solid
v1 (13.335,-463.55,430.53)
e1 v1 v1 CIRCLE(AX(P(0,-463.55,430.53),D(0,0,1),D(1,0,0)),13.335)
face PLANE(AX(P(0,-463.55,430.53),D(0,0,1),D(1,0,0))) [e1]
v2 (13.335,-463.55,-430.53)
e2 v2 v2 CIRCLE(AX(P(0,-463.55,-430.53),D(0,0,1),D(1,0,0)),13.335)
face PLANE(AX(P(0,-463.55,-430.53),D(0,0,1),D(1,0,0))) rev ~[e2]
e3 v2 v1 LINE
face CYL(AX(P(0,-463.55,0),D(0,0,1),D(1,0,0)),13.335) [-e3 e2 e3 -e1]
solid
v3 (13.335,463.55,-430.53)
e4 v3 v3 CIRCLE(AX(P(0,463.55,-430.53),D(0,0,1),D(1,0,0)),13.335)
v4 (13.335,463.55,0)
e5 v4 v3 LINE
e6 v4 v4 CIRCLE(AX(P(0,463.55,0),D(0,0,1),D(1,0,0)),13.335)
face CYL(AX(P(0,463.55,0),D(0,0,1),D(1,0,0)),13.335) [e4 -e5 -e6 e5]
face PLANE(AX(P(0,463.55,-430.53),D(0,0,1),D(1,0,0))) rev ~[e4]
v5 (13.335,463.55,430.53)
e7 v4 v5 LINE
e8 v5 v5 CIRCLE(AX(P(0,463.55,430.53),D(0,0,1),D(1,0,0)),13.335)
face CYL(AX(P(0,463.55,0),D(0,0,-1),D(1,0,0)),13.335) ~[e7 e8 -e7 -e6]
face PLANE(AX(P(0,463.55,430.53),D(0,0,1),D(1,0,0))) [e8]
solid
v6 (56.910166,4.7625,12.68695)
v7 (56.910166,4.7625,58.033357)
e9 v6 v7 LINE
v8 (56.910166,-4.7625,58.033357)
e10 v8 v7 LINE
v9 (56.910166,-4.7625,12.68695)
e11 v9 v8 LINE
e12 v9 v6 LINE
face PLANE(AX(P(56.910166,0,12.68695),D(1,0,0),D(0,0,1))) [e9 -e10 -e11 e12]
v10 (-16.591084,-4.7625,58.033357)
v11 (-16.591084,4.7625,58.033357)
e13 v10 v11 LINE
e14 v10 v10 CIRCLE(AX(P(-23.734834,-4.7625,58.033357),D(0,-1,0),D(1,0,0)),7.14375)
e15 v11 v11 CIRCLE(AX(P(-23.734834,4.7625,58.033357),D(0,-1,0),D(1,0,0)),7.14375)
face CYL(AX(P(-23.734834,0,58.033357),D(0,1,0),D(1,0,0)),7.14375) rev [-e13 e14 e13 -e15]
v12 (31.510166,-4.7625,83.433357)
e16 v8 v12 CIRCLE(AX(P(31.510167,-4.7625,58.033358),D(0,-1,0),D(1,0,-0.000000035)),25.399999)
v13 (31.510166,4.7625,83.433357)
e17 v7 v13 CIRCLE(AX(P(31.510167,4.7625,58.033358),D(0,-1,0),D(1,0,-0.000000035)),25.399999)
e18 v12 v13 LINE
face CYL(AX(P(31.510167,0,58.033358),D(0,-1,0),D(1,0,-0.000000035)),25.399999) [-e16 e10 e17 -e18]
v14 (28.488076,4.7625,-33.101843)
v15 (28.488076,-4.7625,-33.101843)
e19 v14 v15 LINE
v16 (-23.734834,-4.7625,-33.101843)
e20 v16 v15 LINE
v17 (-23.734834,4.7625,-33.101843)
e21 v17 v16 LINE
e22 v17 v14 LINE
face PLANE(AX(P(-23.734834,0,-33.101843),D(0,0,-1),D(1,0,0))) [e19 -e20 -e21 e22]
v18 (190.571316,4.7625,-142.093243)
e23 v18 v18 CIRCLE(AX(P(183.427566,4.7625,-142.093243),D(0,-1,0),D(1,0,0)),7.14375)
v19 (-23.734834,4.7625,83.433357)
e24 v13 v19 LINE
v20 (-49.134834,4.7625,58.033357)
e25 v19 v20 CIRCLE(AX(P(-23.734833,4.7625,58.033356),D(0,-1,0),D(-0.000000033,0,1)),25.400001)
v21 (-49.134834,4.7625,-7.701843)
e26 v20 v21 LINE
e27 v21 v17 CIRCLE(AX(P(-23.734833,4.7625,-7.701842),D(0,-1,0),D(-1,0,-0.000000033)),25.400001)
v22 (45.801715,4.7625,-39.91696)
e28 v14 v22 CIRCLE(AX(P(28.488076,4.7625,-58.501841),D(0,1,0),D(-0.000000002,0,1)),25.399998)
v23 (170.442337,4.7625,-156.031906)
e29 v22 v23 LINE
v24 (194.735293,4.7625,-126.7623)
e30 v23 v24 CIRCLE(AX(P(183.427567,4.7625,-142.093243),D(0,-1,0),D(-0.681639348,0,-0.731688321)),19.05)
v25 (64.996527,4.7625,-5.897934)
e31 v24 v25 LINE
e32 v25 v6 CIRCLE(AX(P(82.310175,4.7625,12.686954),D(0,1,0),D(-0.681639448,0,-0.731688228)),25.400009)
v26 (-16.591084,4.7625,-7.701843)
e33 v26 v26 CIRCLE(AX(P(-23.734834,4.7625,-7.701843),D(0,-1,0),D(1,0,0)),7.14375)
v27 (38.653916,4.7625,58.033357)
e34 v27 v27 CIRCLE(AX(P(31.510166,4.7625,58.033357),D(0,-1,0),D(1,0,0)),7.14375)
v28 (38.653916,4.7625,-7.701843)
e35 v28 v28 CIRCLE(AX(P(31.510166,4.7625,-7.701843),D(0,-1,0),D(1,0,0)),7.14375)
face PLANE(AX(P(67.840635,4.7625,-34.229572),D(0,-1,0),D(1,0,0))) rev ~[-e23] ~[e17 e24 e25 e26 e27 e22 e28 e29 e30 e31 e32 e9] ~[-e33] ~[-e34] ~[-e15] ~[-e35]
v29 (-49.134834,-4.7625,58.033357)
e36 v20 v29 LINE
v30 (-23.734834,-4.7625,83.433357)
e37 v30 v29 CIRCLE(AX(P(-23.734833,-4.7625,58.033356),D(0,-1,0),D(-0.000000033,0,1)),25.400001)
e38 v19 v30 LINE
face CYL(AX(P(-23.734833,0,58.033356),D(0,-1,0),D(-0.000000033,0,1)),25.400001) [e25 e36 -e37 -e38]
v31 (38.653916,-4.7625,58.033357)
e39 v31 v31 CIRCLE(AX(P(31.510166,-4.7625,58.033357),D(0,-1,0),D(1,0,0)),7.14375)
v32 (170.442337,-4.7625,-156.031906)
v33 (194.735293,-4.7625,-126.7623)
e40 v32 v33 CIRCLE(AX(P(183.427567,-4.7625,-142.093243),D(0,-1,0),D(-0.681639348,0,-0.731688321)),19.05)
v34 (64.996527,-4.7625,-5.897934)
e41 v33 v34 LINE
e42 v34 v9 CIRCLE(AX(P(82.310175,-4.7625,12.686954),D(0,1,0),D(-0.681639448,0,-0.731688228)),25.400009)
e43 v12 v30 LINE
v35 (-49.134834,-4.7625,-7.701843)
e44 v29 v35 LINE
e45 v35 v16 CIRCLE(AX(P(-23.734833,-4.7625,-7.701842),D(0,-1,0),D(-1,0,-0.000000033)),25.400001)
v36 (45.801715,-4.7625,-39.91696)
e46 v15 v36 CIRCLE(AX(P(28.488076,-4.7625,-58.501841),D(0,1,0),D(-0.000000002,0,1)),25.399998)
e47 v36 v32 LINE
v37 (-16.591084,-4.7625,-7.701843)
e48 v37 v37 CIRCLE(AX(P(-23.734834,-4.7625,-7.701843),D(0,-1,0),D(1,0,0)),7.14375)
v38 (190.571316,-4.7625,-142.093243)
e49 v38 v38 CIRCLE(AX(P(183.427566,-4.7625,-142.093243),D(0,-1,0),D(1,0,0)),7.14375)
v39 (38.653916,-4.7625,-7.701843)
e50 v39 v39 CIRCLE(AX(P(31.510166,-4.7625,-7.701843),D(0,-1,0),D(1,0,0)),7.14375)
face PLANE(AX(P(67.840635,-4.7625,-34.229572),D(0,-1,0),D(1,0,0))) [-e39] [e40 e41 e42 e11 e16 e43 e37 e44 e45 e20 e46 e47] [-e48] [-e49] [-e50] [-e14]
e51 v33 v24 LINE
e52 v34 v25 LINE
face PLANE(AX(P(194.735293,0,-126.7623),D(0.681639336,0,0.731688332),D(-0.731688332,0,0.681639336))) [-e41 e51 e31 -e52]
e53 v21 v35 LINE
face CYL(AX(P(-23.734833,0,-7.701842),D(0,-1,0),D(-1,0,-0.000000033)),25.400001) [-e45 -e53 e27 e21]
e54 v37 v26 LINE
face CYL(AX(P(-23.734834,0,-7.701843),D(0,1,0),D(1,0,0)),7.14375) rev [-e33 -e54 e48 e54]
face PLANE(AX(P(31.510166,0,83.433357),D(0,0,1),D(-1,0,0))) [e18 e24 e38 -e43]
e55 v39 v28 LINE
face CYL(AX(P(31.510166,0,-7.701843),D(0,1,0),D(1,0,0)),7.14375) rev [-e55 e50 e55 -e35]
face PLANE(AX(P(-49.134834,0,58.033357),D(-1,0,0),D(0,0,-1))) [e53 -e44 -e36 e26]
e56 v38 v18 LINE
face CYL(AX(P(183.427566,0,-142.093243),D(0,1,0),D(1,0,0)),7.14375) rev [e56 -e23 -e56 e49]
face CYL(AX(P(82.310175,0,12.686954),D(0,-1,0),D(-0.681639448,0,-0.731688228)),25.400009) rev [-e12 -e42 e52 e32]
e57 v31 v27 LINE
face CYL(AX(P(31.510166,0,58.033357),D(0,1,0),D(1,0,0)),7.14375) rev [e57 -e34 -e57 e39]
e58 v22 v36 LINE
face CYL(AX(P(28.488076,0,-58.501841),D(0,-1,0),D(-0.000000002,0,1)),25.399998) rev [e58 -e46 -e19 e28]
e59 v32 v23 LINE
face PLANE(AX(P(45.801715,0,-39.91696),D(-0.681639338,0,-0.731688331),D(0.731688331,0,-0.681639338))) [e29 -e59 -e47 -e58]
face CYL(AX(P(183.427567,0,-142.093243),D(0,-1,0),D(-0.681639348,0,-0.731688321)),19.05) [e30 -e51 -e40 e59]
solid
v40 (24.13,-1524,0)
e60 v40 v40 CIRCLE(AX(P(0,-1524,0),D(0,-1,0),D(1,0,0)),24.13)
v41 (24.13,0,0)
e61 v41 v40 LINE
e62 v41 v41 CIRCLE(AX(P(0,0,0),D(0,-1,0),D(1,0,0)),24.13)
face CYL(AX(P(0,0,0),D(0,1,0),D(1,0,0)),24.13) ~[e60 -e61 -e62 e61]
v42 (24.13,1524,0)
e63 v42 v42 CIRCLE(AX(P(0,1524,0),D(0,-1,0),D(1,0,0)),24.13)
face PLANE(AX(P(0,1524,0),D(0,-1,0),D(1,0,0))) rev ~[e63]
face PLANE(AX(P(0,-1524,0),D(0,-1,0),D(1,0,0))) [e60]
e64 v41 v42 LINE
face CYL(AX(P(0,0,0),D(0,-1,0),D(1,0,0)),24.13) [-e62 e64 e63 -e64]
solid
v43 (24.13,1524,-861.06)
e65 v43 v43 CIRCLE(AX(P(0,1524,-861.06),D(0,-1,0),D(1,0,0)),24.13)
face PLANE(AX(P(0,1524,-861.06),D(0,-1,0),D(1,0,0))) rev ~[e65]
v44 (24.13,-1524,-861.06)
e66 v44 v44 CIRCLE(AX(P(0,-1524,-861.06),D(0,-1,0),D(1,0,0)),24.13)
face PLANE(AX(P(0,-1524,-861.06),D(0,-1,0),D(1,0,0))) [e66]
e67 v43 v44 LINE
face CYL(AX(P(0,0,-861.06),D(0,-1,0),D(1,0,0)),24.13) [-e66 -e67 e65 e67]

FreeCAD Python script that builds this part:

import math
import FreeCAD as App
import Part
import Sketcher
Q = App.Units.Quantity

doc = App.newDocument("Part")
body = doc.addObject("PartDesign::Body", "Body")

# Sketch on XZ plane
sketch1 = doc.addObject("Sketcher::SketchObject", "Sketch")
body.addObject(sketch1)
sketch1.AttachmentSupport = (doc.XZ_Plane, [""])
sketch1.MapMode = "FlatFace"
sketch1.addGeometry(Part.LineSegment(App.Vector(31.510166, 83.433357, 0), App.Vector(-23.734834, 83.433357, 0)), False)
sketch1.addGeometry(Part.ArcOfCircle(Part.Circle(App.Vector(-23.734833, 58.033356, 0), App.Vector(0, 0, 1), 25.400001), math.radians(90.000002), math.radians(179.999998)), False)
sketch1.addGeometry(Part.LineSegment(App.Vector(-49.134834, 58.033357, 0), App.Vector(-49.134834, -7.701843, 0)), False)
sketch1.addGeometry(Part.ArcOfCircle(Part.Circle(App.Vector(-23.734833, -7.701842, 0), App.Vector(0, 0, 1), 25.400001), math.radians(-179.999998), math.radians(-90.000002)), False)
sketch1.addGeometry(Part.LineSegment(App.Vector(-23.734834, -33.101843, 0), App.Vector(28.488076, -33.101843, 0)), False)
sketch1.addGeometry(Part.ArcOfCircle(Part.Circle(App.Vector(28.488076, -58.501841, 0), App.Vector(0, 0, 1), 25.399998), math.radians(47.028116), math.radians(90)), False)
sketch1.addGeometry(Part.LineSegment(App.Vector(45.801715, -39.91696, 0), App.Vector(170.442337, -156.031906, 0)), False)
sketch1.addGeometry(Part.ArcOfCircle(Part.Circle(App.Vector(183.427567, -142.093243, 0), App.Vector(0, 0, 1), 19.05), math.radians(-132.971881), math.radians(53.588428)), False)
sketch1.addGeometry(Part.LineSegment(App.Vector(194.735293, -126.7623, 0), App.Vector(64.996527, -5.897934, 0)), False)
sketch1.addGeometry(Part.ArcOfCircle(Part.Circle(App.Vector(82.310175, 12.686954, 0), App.Vector(0, 0, 1), 25.400009), math.radians(-179.999991), math.radians(-132.971888)), False)
sketch1.addGeometry(Part.LineSegment(App.Vector(56.910166, 12.68695, 0), App.Vector(56.910166, 58.033357, 0)), False)
sketch1.addGeometry(Part.ArcOfCircle(Part.Circle(App.Vector(31.510167, 58.033358, 0), App.Vector(0, 0, 1), 25.399999), math.radians(-0.000002), math.radians(90.000002)), False)
sketch1.addGeometry(Part.Circle(App.Vector(183.427566, -142.093243, 0), App.Vector(0, 0, 1), 7.14375), False)
sketch1.addGeometry(Part.Circle(App.Vector(-23.734834, -7.701843, 0), App.Vector(0, 0, 1), 7.14375), False)
sketch1.addGeometry(Part.Circle(App.Vector(31.510166, -7.701843, 0), App.Vector(0, 0, 1), 7.14375), False)
sketch1.addGeometry(Part.Circle(App.Vector(-23.734834, 58.033357, 0), App.Vector(0, 0, 1), 7.14375), False)
sketch1.addGeometry(Part.Circle(App.Vector(31.510166, 58.033357, 0), App.Vector(0, 0, 1), 7.14375), False)
sketch1.addConstraint(Sketcher.Constraint("Coincident", 0, 2, 1, 1))
sketch1.addConstraint(Sketcher.Constraint("Coincident", 1, 2, 2, 1))
sketch1.addConstraint(Sketcher.Constraint("Coincident", 2, 2, 3, 1))
sketch1.addConstraint(Sketcher.Constraint("Coincident", 3, 2, 4, 1))
sketch1.addConstraint(Sketcher.Constraint("Coincident", 4, 2, 5, 2))
sketch1.addConstraint(Sketcher.Constraint("Coincident", 5, 1, 6, 1))
sketch1.addConstraint(Sketcher.Constraint("Coincident", 6, 2, 7, 1))
sketch1.addConstraint(Sketcher.Constraint("Coincident", 7, 2, 8, 1))
sketch1.addConstraint(Sketcher.Constraint("Coincident", 8, 2, 9, 2))
sketch1.addConstraint(Sketcher.Constraint("Coincident", 9, 1, 10, 1))
sketch1.addConstraint(Sketcher.Constraint("Coincident", 10, 2, 11, 1))
sketch1.addConstraint(Sketcher.Constraint("Coincident", 11, 2, 0, 1))
sketch1.addConstraint(Sketcher.Constraint("Horizontal", 0))
sketch1.addConstraint(Sketcher.Constraint("Vertical", 2))
sketch1.addConstraint(Sketcher.Constraint("Horizontal", 4))
sketch1.addConstraint(Sketcher.Constraint("Vertical", 10))
sketch1.addConstraint(Sketcher.Constraint("Coincident", 12, 3, 7, 3))
sketch1.addConstraint(Sketcher.Constraint("Coincident", 13, 3, 3, 3))
sketch1.addConstraint(Sketcher.Constraint("Coincident", 15, 3, 1, 3))
sketch1.addConstraint(Sketcher.Constraint("Coincident", 16, 3, 11, 3))
sketch1.addConstraint(Sketcher.Constraint("Radius", 1, Q("1 in")))
sketch1.addConstraint(Sketcher.Constraint("Radius", 3, Q("1 in")))
sketch1.addConstraint(Sketcher.Constraint("Radius", 5, Q("0.9999999 in")))
sketch1.addConstraint(Sketcher.Constraint("Radius", 11, Q("1 in")))
sketch1.addConstraint(Sketcher.Constraint("Radius", 7, Q("0.75 in")))
sketch1.addConstraint(Sketcher.Constraint("Diameter", 12, Q("0.5625 in")))
sketch1.addConstraint(Sketcher.Constraint("Diameter", 13, Q("0.5625 in")))
sketch1.addConstraint(Sketcher.Constraint("Diameter", 14, Q("0.5625 in")))
sketch1.addConstraint(Sketcher.Constraint("Diameter", 15, Q("0.5625 in")))
sketch1.addConstraint(Sketcher.Constraint("Diameter", 16, Q("0.5625 in")))
sketch1.addConstraint(Sketcher.Constraint("DistanceY", 5, 3, 14, 3, Q("1.9999999 in")))
sketch1.addConstraint(Sketcher.Constraint("DistanceX", 1, 2, 0, 2, Q("1 in")))
sketch1.addConstraint(Sketcher.Constraint("DistanceY", 1, 2, 0, 2, Q("1 in")))
sketch1.addConstraint(Sketcher.Constraint("DistanceX", 2, 2, 3, 2, Q("1 in")))
sketch1.addConstraint(Sketcher.Constraint("DistanceY", 3, 2, 2, 2, Q("1 in")))
sketch1.addConstraint(Sketcher.Constraint("DistanceX", 14, 3, 9, 1, Q("1 in")))
sketch1.addConstraint(Sketcher.Constraint("DistanceX", 11, 2, 10, 2, Q("1 in")))
sketch1.addConstraint(Sketcher.Constraint("DistanceY", 10, 2, 11, 2, Q("1 in")))
sketch1.addConstraint(Sketcher.Constraint("DistanceX", 0, 2, 0, 1, Q("2.175 in")))
sketch1.addConstraint(Sketcher.Constraint("DistanceY", 2, 2, 2, 1, Q("2.588 in")))
sketch1.addConstraint(Sketcher.Constraint("Radius", 9, 25.400009))
sketch1.addConstraint(Sketcher.Constraint("DistanceY", 7, 3, 5, 3, Q("3.2910001 in")))
sketch1.addConstraint(Sketcher.Constraint("DistanceX", 3, 3, 7, 3, Q("8.156 in")))
sketch1.addConstraint(Sketcher.Constraint("DistanceX", 4, 1, 4, 2, 52.22291))
sketch1.addConstraint(Sketcher.Constraint("DistanceY", 7, 2, -1, 1, 126.7623))
sketch1.addConstraint(Sketcher.Constraint("DistanceX", 5, 3, 9, 3, 53.822099))
sketch1.addConstraint(Sketcher.Constraint("DistanceY", 10, 1, 10, 2, 45.346407))
sketch1.addConstraint(Sketcher.Constraint("DistanceY", 5, 3, -1, 1, 58.501841))
sketch1.addConstraint(Sketcher.Constraint("DistanceY", 5, 1, -1, 1, 39.91696))
sketch1.addConstraint(Sketcher.Constraint("DistanceX", 6, 2, 12, 3, 12.985229))
sketch1.addConstraint(Sketcher.Constraint("DistanceX", 8, 2, 9, 3, 17.313648))
sketch1.addConstraint(Sketcher.Constraint("DistanceY", 14, 3, 8, 2, 1.803909))
sketch1.addConstraint(Sketcher.Constraint("DistanceX", 1, 3, -1, 1, 23.734833))
pad1 = doc.addObject("PartDesign::Pad", "Pad")
body.addObject(pad1)
pad1.Profile = sketch1
pad1.Length = Q("0.375 in")
pad1.Midplane = True
body2 = doc.addObject("PartDesign::Body", "Body001")
body2.AllowCompound = True

# Sketch on XZ plane
sketch2 = doc.addObject("Sketcher::SketchObject", "Sketch001")
body2.addObject(sketch2)
sketch2.AttachmentSupport = (doc.getObject("XZ_Plane001"), [""])
sketch2.MapMode = "FlatFace"
sketch2.addGeometry(Part.Circle(App.Vector(0, 0, 0), App.Vector(0, 0, 1), 24), False)
sketch2.addGeometry(Part.Circle(App.Vector(0, -861, 0), App.Vector(0, 0, 1), 24), False)
sketch2.addConstraint(Sketcher.Constraint("Coincident", 0, 3, -1, 1))
sketch2.addConstraint(Sketcher.Constraint("Equal", 0, 1))
sketch2.addConstraint(Sketcher.Constraint("PointOnObject", 1, 3, -2))
sketch2.addConstraint(Sketcher.Constraint("Diameter", 0, Q("1.9 in")))
sketch2.addConstraint(Sketcher.Constraint("DistanceY", 1, 3, -1, 1, Q("33.9 in")))
pad2 = doc.addObject("PartDesign::Pad", "Pad001")
body2.addObject(pad2)
pad2.Profile = sketch2
pad2.Length = Q("120 in")
pad2.Midplane = True
body3 = doc.addObject("PartDesign::Body", "Body002")
body3.AllowCompound = True

# Sketch on XY plane
sketch3 = doc.addObject("Sketcher::SketchObject", "Sketch002")
body3.addObject(sketch3)
sketch3.AttachmentSupport = (doc.getObject("XY_Plane002"), [""])
sketch3.MapMode = "FlatFace"
sketch3.addGeometry(Part.Circle(App.Vector(0, 464, 0), App.Vector(0, 0, 1), 13), False)
sketch3.addGeometry(Part.Circle(App.Vector(0, -464, 0), App.Vector(0, 0, 1), 13), False)
sketch3.addConstraint(Sketcher.Constraint("Equal", 0, 1))
sketch3.addConstraint(Sketcher.Constraint("Symmetric", 0, 3, 1, 3, -1, 1))
sketch3.addConstraint(Sketcher.Constraint("PointOnObject", 0, 3, -2))
sketch3.addConstraint(Sketcher.Constraint("Diameter", 0, Q("1.05 in")))
sketch3.addConstraint(Sketcher.Constraint("DistanceY", 1, 3, 0, 3, Q("36.5 in")))
pad3 = doc.addObject("PartDesign::Pad", "Pad002")
body3.addObject(pad3)
pad3.Profile = sketch3
pad3.Length = Q("33.9 in")
pad3.Midplane = True

doc.recompute()
